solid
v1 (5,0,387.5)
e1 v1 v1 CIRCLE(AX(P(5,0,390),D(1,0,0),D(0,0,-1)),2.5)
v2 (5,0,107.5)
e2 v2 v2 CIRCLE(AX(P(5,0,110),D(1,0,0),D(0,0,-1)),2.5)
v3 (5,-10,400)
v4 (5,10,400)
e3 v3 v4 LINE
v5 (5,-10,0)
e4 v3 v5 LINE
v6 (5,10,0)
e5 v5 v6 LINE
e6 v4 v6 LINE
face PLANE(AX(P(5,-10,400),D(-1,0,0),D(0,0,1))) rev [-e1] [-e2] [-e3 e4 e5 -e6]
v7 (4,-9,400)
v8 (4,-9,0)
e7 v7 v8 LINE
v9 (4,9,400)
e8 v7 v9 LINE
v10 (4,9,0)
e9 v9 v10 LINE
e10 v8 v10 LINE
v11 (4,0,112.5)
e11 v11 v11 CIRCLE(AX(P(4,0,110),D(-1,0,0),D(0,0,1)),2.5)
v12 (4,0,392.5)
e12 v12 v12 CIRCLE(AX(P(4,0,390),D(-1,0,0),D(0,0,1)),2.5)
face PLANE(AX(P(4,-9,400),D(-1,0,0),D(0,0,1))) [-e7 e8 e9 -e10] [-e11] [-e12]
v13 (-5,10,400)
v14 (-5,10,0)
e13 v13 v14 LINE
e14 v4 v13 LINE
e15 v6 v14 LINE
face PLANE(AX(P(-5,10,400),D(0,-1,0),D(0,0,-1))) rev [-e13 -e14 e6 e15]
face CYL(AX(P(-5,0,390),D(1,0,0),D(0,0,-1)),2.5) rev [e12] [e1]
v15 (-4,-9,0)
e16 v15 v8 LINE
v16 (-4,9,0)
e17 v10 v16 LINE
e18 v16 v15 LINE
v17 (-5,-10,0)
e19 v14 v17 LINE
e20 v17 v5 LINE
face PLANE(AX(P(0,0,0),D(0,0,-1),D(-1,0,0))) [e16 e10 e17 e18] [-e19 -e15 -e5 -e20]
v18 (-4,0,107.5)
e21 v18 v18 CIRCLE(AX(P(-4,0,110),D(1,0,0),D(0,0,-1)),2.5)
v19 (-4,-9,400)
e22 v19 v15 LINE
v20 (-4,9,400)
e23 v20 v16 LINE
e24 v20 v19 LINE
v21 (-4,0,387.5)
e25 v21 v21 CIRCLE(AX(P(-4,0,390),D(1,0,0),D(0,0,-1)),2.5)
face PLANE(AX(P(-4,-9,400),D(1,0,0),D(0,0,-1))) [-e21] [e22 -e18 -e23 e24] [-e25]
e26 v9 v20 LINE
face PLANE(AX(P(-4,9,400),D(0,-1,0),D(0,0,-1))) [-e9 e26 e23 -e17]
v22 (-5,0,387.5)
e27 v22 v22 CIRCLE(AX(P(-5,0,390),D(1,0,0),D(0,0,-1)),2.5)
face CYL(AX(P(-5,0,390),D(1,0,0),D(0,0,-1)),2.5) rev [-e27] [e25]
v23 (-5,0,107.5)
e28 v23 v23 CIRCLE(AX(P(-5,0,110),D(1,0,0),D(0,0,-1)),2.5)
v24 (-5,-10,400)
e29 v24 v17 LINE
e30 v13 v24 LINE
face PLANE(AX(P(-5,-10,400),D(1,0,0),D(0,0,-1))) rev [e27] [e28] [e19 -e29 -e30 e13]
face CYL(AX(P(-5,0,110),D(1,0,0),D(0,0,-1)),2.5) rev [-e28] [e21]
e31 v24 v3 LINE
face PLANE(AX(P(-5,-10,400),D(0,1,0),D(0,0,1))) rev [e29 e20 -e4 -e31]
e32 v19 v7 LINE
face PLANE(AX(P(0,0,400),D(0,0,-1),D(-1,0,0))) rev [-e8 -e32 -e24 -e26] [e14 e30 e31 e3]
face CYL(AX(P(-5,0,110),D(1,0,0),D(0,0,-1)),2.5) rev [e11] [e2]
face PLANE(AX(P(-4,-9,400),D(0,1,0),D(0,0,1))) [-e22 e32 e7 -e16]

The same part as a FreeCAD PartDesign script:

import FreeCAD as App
import Part
import Sketcher

V = App.Vector


def add_polygon(sketch, points):
    """Adds a closed chain of lines whose ends are joined by coincident constraints."""
    first, n = sketch.GeometryCount, len(points)
    for a, b in zip(points, points[1:] + points[:1]):
        sketch.addGeometry(Part.LineSegment(App.Vector(*a, 0), App.Vector(*b, 0)), False)
    for i in range(n):
        sketch.addConstraint(Sketcher.Constraint("Coincident", first + i, 2, first + (i + 1) % n, 1))

doc = App.newDocument("Part")
body = doc.addObject("PartDesign::Body", "Body")

sketch1 = body.newObject("Sketcher::SketchObject", "Sketch")
sketch1.AttachmentSupport = (doc.getObject("XY_Plane"), [""])
sketch1.MapMode = "FlatFace"
add_polygon(sketch1, [(-5, 10), (-5, -10), (5, -10), (5, 10)])
add_polygon(sketch1, [(4, -9), (-4, -9), (-4, 9), (4, 9)])
sketch1.addConstraint(Sketcher.Constraint("Vertical", 0))
sketch1.addConstraint(Sketcher.Constraint("Horizontal", 1))
sketch1.addConstraint(Sketcher.Constraint("Vertical", 2))
sketch1.addConstraint(Sketcher.Constraint("Horizontal", 3))
sketch1.addConstraint(Sketcher.Constraint("Horizontal", 4))
sketch1.addConstraint(Sketcher.Constraint("Vertical", 5))
sketch1.addConstraint(Sketcher.Constraint("Horizontal", 6))
sketch1.addConstraint(Sketcher.Constraint("Vertical", 7))
sketch1.addConstraint(Sketcher.Constraint("Symmetric", 0, 2, 2, 2, -1, 1))
sketch1.addConstraint(Sketcher.Constraint("Symmetric", 4, 2, 6, 2, -1, 1))
sketch1.addConstraint(Sketcher.Constraint("DistanceX", 1, 1, 1, 2, 10.0))
sketch1.addConstraint(Sketcher.Constraint("DistanceX", 4, 2, 4, 1, 8.0))
sketch1.addConstraint(Sketcher.Constraint("DistanceY", 0, 2, 0, 1, 20.0))
sketch1.addConstraint(Sketcher.Constraint("DistanceY", 5, 1, 5, 2, 18.0))
pad1 = body.newObject("PartDesign::Pad", "Pad")
pad1.Profile = sketch1
pad1.Length = 400

sketch2 = body.newObject("Sketcher::SketchObject", "Sketch001")
sketch2.AttachmentSupport = (doc.getObject("YZ_Plane"), [""])
sketch2.MapMode = "FlatFace"
sketch2.AttachmentOffset = App.Placement(V(0, 0, 5), App.Rotation())
sketch2.addGeometry(Part.Circle(V(0, 110, 0), V(0, 0, 1), 2.5), False)
sketch2.addGeometry(Part.Circle(V(0, 390, 0), V(0, 0, 1), 2.5), False)
sketch2.addConstraint(Sketcher.Constraint("Equal", 0, 1))
sketch2.addConstraint(Sketcher.Constraint("PointOnObject", 0, 3, -2))
sketch2.addConstraint(Sketcher.Constraint("PointOnObject", 1, 3, -2))
sketch2.addConstraint(Sketcher.Constraint("Diameter", 0, 5.0))
sketch2.addConstraint(Sketcher.Constraint("DistanceY", -1, 1, 0, 3, 110.0))
sketch2.addConstraint(Sketcher.Constraint("DistanceY", -1, 1, 1, 3, 390.0))
pocket1 = body.newObject("PartDesign::Pocket", "Pocket")
pocket1.Profile = sketch2
pocket1.Type = "ThroughAll"

doc.recompute()
